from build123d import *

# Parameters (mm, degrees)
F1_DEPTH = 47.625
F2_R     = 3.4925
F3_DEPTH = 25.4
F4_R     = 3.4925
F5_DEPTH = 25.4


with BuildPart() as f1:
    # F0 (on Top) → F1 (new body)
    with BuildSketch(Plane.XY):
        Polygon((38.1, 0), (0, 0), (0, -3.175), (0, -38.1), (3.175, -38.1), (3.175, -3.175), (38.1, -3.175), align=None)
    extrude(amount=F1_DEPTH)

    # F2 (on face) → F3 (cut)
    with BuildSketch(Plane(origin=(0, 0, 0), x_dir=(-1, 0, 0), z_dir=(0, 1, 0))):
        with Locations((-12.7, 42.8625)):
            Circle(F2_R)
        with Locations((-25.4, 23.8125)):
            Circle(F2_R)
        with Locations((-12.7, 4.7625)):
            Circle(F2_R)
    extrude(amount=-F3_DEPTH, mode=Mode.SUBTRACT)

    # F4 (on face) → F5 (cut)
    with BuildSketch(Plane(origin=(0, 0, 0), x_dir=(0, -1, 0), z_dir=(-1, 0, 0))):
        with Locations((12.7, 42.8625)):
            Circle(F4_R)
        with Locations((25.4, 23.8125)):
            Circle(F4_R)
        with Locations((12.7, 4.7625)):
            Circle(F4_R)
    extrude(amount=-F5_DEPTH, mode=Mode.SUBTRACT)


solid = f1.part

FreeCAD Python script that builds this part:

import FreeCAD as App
import Part
import Sketcher
Q = App.Units.Quantity

doc = App.newDocument("Part")
params = doc.addObject("Spreadsheet::Sheet", "Params")
for row, (alias, value) in enumerate([
    ("sketch1_width", "1.5 in"),
    ("sketch1_width2", "0.125 in"),
    ("pad1_length", "1.875 in"),
    ("sketch2_diameter", "0.275 in"),
    ("pocket1_length", "1 in"),
    ("sketch3_diameter", "0.275 in"),
    ("pocket2_length", "1 in"),
], start=1):
    params.set(f"A{row}", alias)
    params.set(f"B{row}", "=" + value)
    params.setAlias(f"B{row}", alias)

body = doc.addObject("PartDesign::Body", "Body")

# Sketch on XY plane
sketch1 = doc.addObject("Sketcher::SketchObject", "Sketch")
body.addObject(sketch1)
sketch1.AttachmentSupport = (doc.XY_Plane, [""])
sketch1.MapMode = "FlatFace"
sketch1.addGeometry([
    Part.LineSegment(App.Vector(38.1, 0, 0), App.Vector(0, 0, 0)),  # 0
    Part.LineSegment(App.Vector(0, 0, 0), App.Vector(0, -38.1, 0)),  # 1
    Part.LineSegment(App.Vector(0, -38.1, 0), App.Vector(3.2, -38.1, 0)),  # 2
    Part.LineSegment(App.Vector(3.2, -38.1, 0), App.Vector(3.2, -3.2, 0)),  # 3
    Part.LineSegment(App.Vector(3.2, -3.2, 0), App.Vector(38.1, -3.2, 0)),  # 4
    Part.LineSegment(App.Vector(38.1, -3.2, 0), App.Vector(38.1, 0, 0)),  # 5
], False)
sketch1.addConstraint([
    Sketcher.Constraint("Coincident", 0, 2, 1, 1),
    Sketcher.Constraint("Coincident", 1, 2, 2, 1),
    Sketcher.Constraint("Coincident", 2, 2, 3, 1),
    Sketcher.Constraint("Coincident", 3, 2, 4, 1),
    Sketcher.Constraint("Coincident", 4, 2, 5, 1),
    Sketcher.Constraint("Coincident", 5, 2, 0, 1),
    Sketcher.Constraint("Horizontal", 0),
    Sketcher.Constraint("Vertical", 1),
    Sketcher.Constraint("Horizontal", 2),
    Sketcher.Constraint("Vertical", 3),
    Sketcher.Constraint("Horizontal", 4),
    Sketcher.Constraint("Vertical", 5),
    Sketcher.Constraint("Coincident", 0, 2, -1, 1),
    Sketcher.Constraint("Equal", 0, 1),
    Sketcher.Constraint("Equal", 4, 3),
    Sketcher.Constraint("DistanceX", 0, 2, 0, 1, Q("1.5 in")),
    Sketcher.Constraint("DistanceX", 2, 1, 2, 2, Q("0.125 in")),
])
sketch1.setExpression("Constraints[15]", "Params.sketch1_width")
sketch1.setExpression("Constraints[16]", "Params.sketch1_width2")
pad1 = doc.addObject("PartDesign::Pad", "Pad")
body.addObject(pad1)
pad1.Profile = sketch1
pad1.setExpression("Length", "Params.pad1_length")

# Sketch on XZ plane
sketch2 = doc.addObject("Sketcher::SketchObject", "Sketch001")
body.addObject(sketch2)
sketch2.AttachmentSupport = (doc.XZ_Plane, [""])
sketch2.MapMode = "FlatFace"
sketch2.addGeometry([
    Part.Circle(App.Vector(12.7, 42.9, 0), App.Vector(0, 0, 1), 3.5),
    Part.Circle(App.Vector(25.4, 23.8, 0), App.Vector(0, 0, 1), 3.5),
    Part.Circle(App.Vector(12.7, 4.8, 0), App.Vector(0, 0, 1), 3.5),
], False)
sketch2.addConstraint([
    Sketcher.Constraint("Equal", 0, 1),
    Sketcher.Constraint("Equal", 1, 2),
    Sketcher.Constraint("Vertical", 0, 3, 2, 3),
    Sketcher.Constraint("Diameter", 0, Q("0.275 in")),
    Sketcher.Constraint("DistanceX", -1, 1, 1, 3, Q("1 in")),
    Sketcher.Constraint("DistanceX", -1, 1, 0, 3, Q("0.5 in")),
    Sketcher.Constraint("DistanceY", 2, 3, 0, 3, Q("1.5 in")),
    Sketcher.Constraint("DistanceY", 1, 3, 0, 3, Q("0.75 in")),
    Sketcher.Constraint("DistanceY", -1, 1, 0, 3, Q("1.6875 in")),
])
sketch2.setExpression("Constraints[3]", "Params.sketch2_diameter")
pocket1 = doc.addObject("PartDesign::Pocket", "Pocket")
body.addObject(pocket1)
pocket1.Profile = sketch2
pocket1.setExpression("Length", "Params.pocket1_length")
pocket1.Reversed = True

# Sketch on YZ plane
sketch3 = doc.addObject("Sketcher::SketchObject", "Sketch002")
body.addObject(sketch3)
sketch3.AttachmentSupport = (doc.YZ_Plane, [""])
sketch3.MapMode = "FlatFace"
sketch3.addGeometry([
    Part.Circle(App.Vector(-12.7, 42.9, 0), App.Vector(0, 0, 1), 3.5),
    Part.Circle(App.Vector(-25.4, 23.8, 0), App.Vector(0, 0, 1), 3.5),
    Part.Circle(App.Vector(-12.7, 4.8, 0), App.Vector(0, 0, 1), 3.5),
], False)
sketch3.addConstraint([
    Sketcher.Constraint("Equal", 0, 1),
    Sketcher.Constraint("Equal", 1, 2),
    Sketcher.Constraint("Vertical", 0, 3, 2, 3),
    Sketcher.Constraint("Diameter", 0, Q("0.275 in")),
    Sketcher.Constraint("DistanceX", 1, 3, -1, 1, Q("1 in")),
    Sketcher.Constraint("DistanceX", 0, 3, -1, 1, Q("0.5 in")),
    Sketcher.Constraint("DistanceY", 2, 3, 0, 3, Q("1.5 in")),
    Sketcher.Constraint("DistanceY", 1, 3, 0, 3, Q("0.75 in")),
    Sketcher.Constraint("DistanceY", -1, 1, 0, 3, Q("1.6875 in")),
])
sketch3.setExpression("Constraints[3]", "Params.sketch3_diameter")
pocket2 = doc.addObject("PartDesign::Pocket", "Pocket001")
body.addObject(pocket2)
pocket2.Profile = sketch3
pocket2.setExpression("Length", "Params.pocket2_length")
pocket2.Reversed = True

doc.recompute()
